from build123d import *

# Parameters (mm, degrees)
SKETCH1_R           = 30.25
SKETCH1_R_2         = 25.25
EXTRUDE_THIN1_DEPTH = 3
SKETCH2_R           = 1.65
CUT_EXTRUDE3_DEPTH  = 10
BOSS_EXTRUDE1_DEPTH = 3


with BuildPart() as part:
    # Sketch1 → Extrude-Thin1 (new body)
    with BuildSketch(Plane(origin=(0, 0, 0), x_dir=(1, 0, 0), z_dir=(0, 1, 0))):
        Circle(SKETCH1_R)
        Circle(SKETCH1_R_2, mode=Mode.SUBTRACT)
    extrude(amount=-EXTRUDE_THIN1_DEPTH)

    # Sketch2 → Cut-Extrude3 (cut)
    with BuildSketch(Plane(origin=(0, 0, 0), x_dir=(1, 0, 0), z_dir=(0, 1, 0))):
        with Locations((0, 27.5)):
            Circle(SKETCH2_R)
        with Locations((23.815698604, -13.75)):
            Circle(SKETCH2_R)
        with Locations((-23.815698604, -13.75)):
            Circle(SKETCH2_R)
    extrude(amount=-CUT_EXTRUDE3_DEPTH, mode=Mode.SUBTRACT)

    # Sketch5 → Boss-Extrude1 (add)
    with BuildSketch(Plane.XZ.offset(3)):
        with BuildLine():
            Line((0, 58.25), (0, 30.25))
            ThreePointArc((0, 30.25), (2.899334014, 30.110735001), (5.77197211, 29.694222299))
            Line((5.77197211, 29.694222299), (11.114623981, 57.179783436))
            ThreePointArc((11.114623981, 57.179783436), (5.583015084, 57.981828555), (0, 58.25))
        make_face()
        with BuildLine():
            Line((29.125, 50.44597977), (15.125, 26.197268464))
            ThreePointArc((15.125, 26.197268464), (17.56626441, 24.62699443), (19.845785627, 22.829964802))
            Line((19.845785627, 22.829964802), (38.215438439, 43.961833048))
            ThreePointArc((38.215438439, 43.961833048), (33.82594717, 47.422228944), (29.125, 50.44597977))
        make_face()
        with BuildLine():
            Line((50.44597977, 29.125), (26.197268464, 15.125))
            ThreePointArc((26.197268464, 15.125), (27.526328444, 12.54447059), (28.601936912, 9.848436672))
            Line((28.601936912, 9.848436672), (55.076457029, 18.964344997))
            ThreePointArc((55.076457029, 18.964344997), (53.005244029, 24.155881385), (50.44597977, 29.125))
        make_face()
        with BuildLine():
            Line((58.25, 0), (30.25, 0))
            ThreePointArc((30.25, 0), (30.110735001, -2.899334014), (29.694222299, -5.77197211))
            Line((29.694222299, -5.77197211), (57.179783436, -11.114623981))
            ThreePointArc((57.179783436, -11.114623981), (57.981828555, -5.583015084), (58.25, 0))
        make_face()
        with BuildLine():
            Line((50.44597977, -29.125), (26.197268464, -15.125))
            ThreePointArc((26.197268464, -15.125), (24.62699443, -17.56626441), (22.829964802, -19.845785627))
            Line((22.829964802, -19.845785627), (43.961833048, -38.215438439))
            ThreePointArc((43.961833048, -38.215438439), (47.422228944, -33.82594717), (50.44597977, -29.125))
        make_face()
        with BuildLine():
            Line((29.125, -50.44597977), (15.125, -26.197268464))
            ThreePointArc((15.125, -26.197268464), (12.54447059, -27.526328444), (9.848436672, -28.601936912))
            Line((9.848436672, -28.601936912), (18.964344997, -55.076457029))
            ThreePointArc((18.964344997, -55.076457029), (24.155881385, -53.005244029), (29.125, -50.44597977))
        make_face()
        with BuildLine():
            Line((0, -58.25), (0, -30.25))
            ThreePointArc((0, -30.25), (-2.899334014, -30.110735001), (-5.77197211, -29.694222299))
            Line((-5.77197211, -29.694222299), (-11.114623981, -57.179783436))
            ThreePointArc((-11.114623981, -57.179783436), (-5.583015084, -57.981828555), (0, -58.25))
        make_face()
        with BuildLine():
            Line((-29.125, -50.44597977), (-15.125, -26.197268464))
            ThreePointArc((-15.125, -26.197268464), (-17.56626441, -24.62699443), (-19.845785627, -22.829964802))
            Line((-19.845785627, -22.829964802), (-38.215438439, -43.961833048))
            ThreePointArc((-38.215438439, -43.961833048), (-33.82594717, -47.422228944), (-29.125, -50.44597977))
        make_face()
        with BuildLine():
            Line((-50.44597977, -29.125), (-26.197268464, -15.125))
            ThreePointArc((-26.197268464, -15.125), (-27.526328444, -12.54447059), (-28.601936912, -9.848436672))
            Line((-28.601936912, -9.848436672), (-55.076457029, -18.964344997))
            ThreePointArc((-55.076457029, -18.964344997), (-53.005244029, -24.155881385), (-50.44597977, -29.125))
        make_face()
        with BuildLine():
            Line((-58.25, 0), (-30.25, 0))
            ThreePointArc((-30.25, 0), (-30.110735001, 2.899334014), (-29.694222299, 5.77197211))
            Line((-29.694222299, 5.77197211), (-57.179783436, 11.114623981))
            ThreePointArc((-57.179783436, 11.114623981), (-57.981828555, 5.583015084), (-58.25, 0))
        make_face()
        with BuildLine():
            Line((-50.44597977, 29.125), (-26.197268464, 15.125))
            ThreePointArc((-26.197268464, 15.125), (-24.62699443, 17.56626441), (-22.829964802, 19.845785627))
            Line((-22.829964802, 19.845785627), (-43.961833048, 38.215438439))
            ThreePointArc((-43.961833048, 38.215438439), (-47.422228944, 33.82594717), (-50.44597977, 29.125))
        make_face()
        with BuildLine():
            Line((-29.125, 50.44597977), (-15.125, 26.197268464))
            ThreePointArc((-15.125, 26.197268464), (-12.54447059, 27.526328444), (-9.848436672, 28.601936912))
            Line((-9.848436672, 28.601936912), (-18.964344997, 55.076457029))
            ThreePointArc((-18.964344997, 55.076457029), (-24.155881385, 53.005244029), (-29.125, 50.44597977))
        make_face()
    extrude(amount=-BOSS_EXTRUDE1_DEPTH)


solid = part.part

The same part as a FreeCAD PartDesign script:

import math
import FreeCAD as App
import Part
import Sketcher
from FreeCAD import Vector
Q = App.Units.Quantity

doc = App.newDocument("Part")
body = doc.addObject("PartDesign::Body", "Body")

# Sketch on XZ plane
sketch1 = body.newObject("Sketcher::SketchObject", "Sketch")
sketch1.AttachmentSupport = (doc.getObject("XZ_Plane"), [""])
sketch1.MapMode = "FlatFace"
sketch1.addGeometry(Part.Circle(Vector(0, 0, 0), Vector(0, 0, 1), 30.25), False)
sketch1.addGeometry(Part.Circle(Vector(0, 0, 0), Vector(0, 0, 1), 25.25), False)
sketch1.addConstraint(Sketcher.Constraint("Coincident", 0, 3, -1, 1))
sketch1.addConstraint(Sketcher.Constraint("Coincident", 1, 3, -1, 1))
sketch1.addConstraint(Sketcher.Constraint("Diameter", 0, 60.5))
sketch1.addConstraint(Sketcher.Constraint("Diameter", 1, 50.5))
pad1 = body.newObject("PartDesign::Pad", "Pad")
pad1.Profile = sketch1
pad1.Length = 3

# Sketch on XZ plane
sketch2 = body.newObject("Sketcher::SketchObject", "Sketch001")
sketch2.AttachmentSupport = (doc.getObject("XZ_Plane"), [""])
sketch2.MapMode = "FlatFace"
sketch2.addGeometry(Part.Circle(Vector(0, -27.5, 0), Vector(0, 0, 1), 1.65), False)
sketch2.addGeometry(Part.Circle(Vector(23.815699, 13.75, 0), Vector(0, 0, 1), 1.65), False)
sketch2.addGeometry(Part.Circle(Vector(-23.815699, 13.75, 0), Vector(0, 0, 1), 1.65), False)
sketch2.addConstraint(Sketcher.Constraint("Equal", 0, 1))
sketch2.addConstraint(Sketcher.Constraint("Equal", 1, 2))
sketch2.addConstraint(Sketcher.Constraint("Symmetric", 1, 3, 2, 3, -2))
sketch2.addConstraint(Sketcher.Constraint("PointOnObject", 0, 3, -2))
sketch2.addConstraint(Sketcher.Constraint("Diameter", 0, 3.3))
sketch2.addConstraint(Sketcher.Constraint("DistanceY", 0, 3, -1, 1, 27.5))
sketch2.addConstraint(Sketcher.Constraint("DistanceY", -1, 1, 1, 3, 13.75))
sketch2.addConstraint(Sketcher.Constraint("DistanceX", -1, 1, 1, 3, 23.815699))
pocket1 = body.newObject("PartDesign::Pocket", "Pocket")
pocket1.Profile = sketch2
pocket1.Length = 10
pocket1.Reversed = True

# Sketch on XZ plane
sketch3 = body.newObject("Sketcher::SketchObject", "Sketch002")
sketch3.AttachmentSupport = (doc.getObject("XZ_Plane"), [""])
sketch3.MapMode = "FlatFace"
sketch3.AttachmentOffset = App.Placement(Vector(0, 0, 3), App.Rotation())
sketch3.addGeometry(Part.LineSegment(Vector(0, 58.25, 0), Vector(0, 30.25, 0)), False)
sketch3.addGeometry(Part.ArcOfCircle(Part.Circle(Vector(0, 0, 0), Vector(0, 0, 1), 30.25), math.radians(79), math.radians(90)), False)
sketch3.addGeometry(Part.LineSegment(Vector(5.771972, 29.694222, 0), Vector(11.114624, 57.179783, 0)), False)
sketch3.addGeometry(Part.ArcOfCircle(Part.Circle(Vector(0, 0, 0), Vector(0, 0, 1), 58.25), math.radians(79), math.radians(90)), False)
sketch3.addGeometry(Part.LineSegment(Vector(29.125, 50.44598, 0), Vector(15.125, 26.197268, 0)), False)
sketch3.addGeometry(Part.ArcOfCircle(Part.Circle(Vector(0, 0, 0), Vector(0, 0, 1), 30.25), math.radians(49), math.radians(60)), False)
sketch3.addGeometry(Part.LineSegment(Vector(19.845786, 22.829965, 0), Vector(38.215438, 43.961833, 0)), False)
sketch3.addGeometry(Part.ArcOfCircle(Part.Circle(Vector(0, 0, 0), Vector(0, 0, 1), 58.25), math.radians(49), math.radians(60)), False)
sketch3.addGeometry(Part.LineSegment(Vector(50.44598, 29.125, 0), Vector(26.197268, 15.125, 0)), False)
sketch3.addGeometry(Part.ArcOfCircle(Part.Circle(Vector(0, 0, 0), Vector(0, 0, 1), 30.25), math.radians(19), math.radians(30)), False)
sketch3.addGeometry(Part.LineSegment(Vector(28.601937, 9.848437, 0), Vector(55.076457, 18.964345, 0)), False)
sketch3.addGeometry(Part.ArcOfCircle(Part.Circle(Vector(0, 0, 0), Vector(0, 0, 1), 58.25), math.radians(19), math.radians(30)), False)
sketch3.addGeometry(Part.LineSegment(Vector(58.25, 0, 0), Vector(30.25, 0, 0)), False)
sketch3.addGeometry(Part.ArcOfCircle(Part.Circle(Vector(0, 0, 0), Vector(0, 0, 1), 30.25), math.radians(-11), math.radians(0)), False)
sketch3.addGeometry(Part.LineSegment(Vector(29.694222, -5.771972, 0), Vector(57.179783, -11.114624, 0)), False)
sketch3.addGeometry(Part.ArcOfCircle(Part.Circle(Vector(0, 0, 0), Vector(0, 0, 1), 58.25), math.radians(-11), math.radians(0)), False)
sketch3.addGeometry(Part.LineSegment(Vector(50.44598, -29.125, 0), Vector(26.197268, -15.125, 0)), False)
sketch3.addGeometry(Part.ArcOfCircle(Part.Circle(Vector(0, 0, 0), Vector(0, 0, 1), 30.25), math.radians(-41), math.radians(-30)), False)
sketch3.addGeometry(Part.LineSegment(Vector(22.829965, -19.845786, 0), Vector(43.961833, -38.215438, 0)), False)
sketch3.addGeometry(Part.ArcOfCircle(Part.Circle(Vector(0, 0, 0), Vector(0, 0, 1), 58.25), math.radians(-41), math.radians(-30)), False)
sketch3.addGeometry(Part.LineSegment(Vector(29.125, -50.44598, 0), Vector(15.125, -26.197268, 0)), False)
sketch3.addGeometry(Part.ArcOfCircle(Part.Circle(Vector(0, 0, 0), Vector(0, 0, 1), 30.25), math.radians(-71), math.radians(-60)), False)
sketch3.addGeometry(Part.LineSegment(Vector(9.848437, -28.601937, 0), Vector(18.964345, -55.076457, 0)), False)
sketch3.addGeometry(Part.ArcOfCircle(Part.Circle(Vector(0, 0, 0), Vector(0, 0, 1), 58.25), math.radians(-71), math.radians(-60)), False)
sketch3.addGeometry(Part.LineSegment(Vector(0, -58.25, 0), Vector(0, -30.25, 0)), False)
sketch3.addGeometry(Part.ArcOfCircle(Part.Circle(Vector(0, 0, 0), Vector(0, 0, 1), 30.25), math.radians(-101), math.radians(-90)), False)
sketch3.addGeometry(Part.LineSegment(Vector(-5.771972, -29.694222, 0), Vector(-11.114624, -57.179783, 0)), False)
sketch3.addGeometry(Part.ArcOfCircle(Part.Circle(Vector(0, 0, 0), Vector(0, 0, 1), 58.25), math.radians(-101), math.radians(-90)), False)
sketch3.addGeometry(Part.LineSegment(Vector(-29.125, -50.44598, 0), Vector(-15.125, -26.197268, 0)), False)
sketch3.addGeometry(Part.ArcOfCircle(Part.Circle(Vector(0, 0, 0), Vector(0, 0, 1), 30.25), math.radians(-131), math.radians(-120)), False)
sketch3.addGeometry(Part.LineSegment(Vector(-19.845786, -22.829965, 0), Vector(-38.215438, -43.961833, 0)), False)
sketch3.addGeometry(Part.ArcOfCircle(Part.Circle(Vector(0, 0, 0), Vector(0, 0, 1), 58.25), math.radians(-131), math.radians(-120)), False)
sketch3.addGeometry(Part.LineSegment(Vector(-50.44598, -29.125, 0), Vector(-26.197268, -15.125, 0)), False)
sketch3.addGeometry(Part.ArcOfCircle(Part.Circle(Vector(0, 0, 0), Vector(0, 0, 1), 30.25), math.radians(-161), math.radians(-150)), False)
sketch3.addGeometry(Part.LineSegment(Vector(-28.601937, -9.848437, 0), Vector(-55.076457, -18.964345, 0)), False)
sketch3.addGeometry(Part.ArcOfCircle(Part.Circle(Vector(0, 0, 0), Vector(0, 0, 1), 58.25), math.radians(-161), math.radians(-150)), False)
sketch3.addGeometry(Part.LineSegment(Vector(-58.25, 0, 0), Vector(-30.25, 0, 0)), False)
sketch3.addGeometry(Part.ArcOfCircle(Part.Circle(Vector(0, 0, 0), Vector(0, 0, 1), 30.25), math.radians(169), math.radians(180)), False)
sketch3.addGeometry(Part.LineSegment(Vector(-29.694222, 5.771972, 0), Vector(-57.179783, 11.114624, 0)), False)
sketch3.addGeometry(Part.ArcOfCircle(Part.Circle(Vector(0, 0, 0), Vector(0, 0, 1), 58.25), math.radians(169), math.radians(180)), False)
sketch3.addGeometry(Part.LineSegment(Vector(-50.44598, 29.125, 0), Vector(-26.197268, 15.125, 0)), False)
sketch3.addGeometry(Part.ArcOfCircle(Part.Circle(Vector(0, 0, 0), Vector(0, 0, 1), 30.25), math.radians(139), math.radians(150)), False)
sketch3.addGeometry(Part.LineSegment(Vector(-22.829965, 19.845786, 0), Vector(-43.961833, 38.215438, 0)), False)
sketch3.addGeometry(Part.ArcOfCircle(Part.Circle(Vector(0, 0, 0), Vector(0, 0, 1), 58.25), math.radians(139), math.radians(150)), False)
sketch3.addGeometry(Part.LineSegment(Vector(-29.125, 50.44598, 0), Vector(-15.125, 26.197268, 0)), False)
sketch3.addGeometry(Part.ArcOfCircle(Part.Circle(Vector(0, 0, 0), Vector(0, 0, 1), 30.25), math.radians(109), math.radians(120)), False)
sketch3.addGeometry(Part.LineSegment(Vector(-9.848437, 28.601937, 0), Vector(-18.964345, 55.076457, 0)), False)
sketch3.addGeometry(Part.ArcOfCircle(Part.Circle(Vector(0, 0, 0), Vector(0, 0, 1), 58.25), math.radians(109), math.radians(120)), False)
sketch3.addConstraint(Sketcher.Constraint("Coincident", 0, 2, 1, 2))
sketch3.addConstraint(Sketcher.Constraint("Coincident", 1, 1, 2, 1))
sketch3.addConstraint(Sketcher.Constraint("Coincident", 2, 2, 3, 1))
sketch3.addConstraint(Sketcher.Constraint("Coincident", 3, 2, 0, 1))
sketch3.addConstraint(Sketcher.Constraint("Coincident", 4, 2, 5, 2))
sketch3.addConstraint(Sketcher.Constraint("Coincident", 5, 1, 6, 1))
sketch3.addConstraint(Sketcher.Constraint("Coincident", 6, 2, 7, 1))
sketch3.addConstraint(Sketcher.Constraint("Coincident", 7, 2, 4, 1))
sketch3.addConstraint(Sketcher.Constraint("Coincident", 8, 2, 9, 2))
sketch3.addConstraint(Sketcher.Constraint("Coincident", 9, 1, 10, 1))
sketch3.addConstraint(Sketcher.Constraint("Coincident", 10, 2, 11, 1))
sketch3.addConstraint(Sketcher.Constraint("Coincident", 11, 2, 8, 1))
sketch3.addConstraint(Sketcher.Constraint("Coincident", 12, 2, 13, 2))
sketch3.addConstraint(Sketcher.Constraint("Coincident", 13, 1, 14, 1))
sketch3.addConstraint(Sketcher.Constraint("Coincident", 14, 2, 15, 1))
sketch3.addConstraint(Sketcher.Constraint("Coincident", 15, 2, 12, 1))
sketch3.addConstraint(Sketcher.Constraint("Coincident", 16, 2, 17, 2))
sketch3.addConstraint(Sketcher.Constraint("Coincident", 17, 1, 18, 1))
sketch3.addConstraint(Sketcher.Constraint("Coincident", 18, 2, 19, 1))
sketch3.addConstraint(Sketcher.Constraint("Coincident", 19, 2, 16, 1))
sketch3.addConstraint(Sketcher.Constraint("Coincident", 20, 2, 21, 2))
sketch3.addConstraint(Sketcher.Constraint("Coincident", 21, 1, 22, 1))
sketch3.addConstraint(Sketcher.Constraint("Coincident", 22, 2, 23, 1))
sketch3.addConstraint(Sketcher.Constraint("Coincident", 23, 2, 20, 1))
sketch3.addConstraint(Sketcher.Constraint("Coincident", 24, 2, 25, 2))
sketch3.addConstraint(Sketcher.Constraint("Coincident", 25, 1, 26, 1))
sketch3.addConstraint(Sketcher.Constraint("Coincident", 26, 2, 27, 1))
sketch3.addConstraint(Sketcher.Constraint("Coincident", 27, 2, 24, 1))
sketch3.addConstraint(Sketcher.Constraint("Coincident", 28, 2, 29, 2))
sketch3.addConstraint(Sketcher.Constraint("Coincident", 29, 1, 30, 1))
sketch3.addConstraint(Sketcher.Constraint("Coincident", 30, 2, 31, 1))
sketch3.addConstraint(Sketcher.Constraint("Coincident", 31, 2, 28, 1))
sketch3.addConstraint(Sketcher.Constraint("Coincident", 32, 2, 33, 2))
sketch3.addConstraint(Sketcher.Constraint("Coincident", 33, 1, 34, 1))
sketch3.addConstraint(Sketcher.Constraint("Coincident", 34, 2, 35, 1))
sketch3.addConstraint(Sketcher.Constraint("Coincident", 35, 2, 32, 1))
sketch3.addConstraint(Sketcher.Constraint("Coincident", 36, 2, 37, 2))
sketch3.addConstraint(Sketcher.Constraint("Coincident", 37, 1, 38, 1))
sketch3.addConstraint(Sketcher.Constraint("Coincident", 38, 2, 39, 1))
sketch3.addConstraint(Sketcher.Constraint("Coincident", 39, 2, 36, 1))
sketch3.addConstraint(Sketcher.Constraint("Coincident", 40, 2, 41, 2))
sketch3.addConstraint(Sketcher.Constraint("Coincident", 41, 1, 42, 1))
sketch3.addConstraint(Sketcher.Constraint("Coincident", 42, 2, 43, 1))
sketch3.addConstraint(Sketcher.Constraint("Coincident", 43, 2, 40, 1))
sketch3.addConstraint(Sketcher.Constraint("Coincident", 44, 2, 45, 2))
sketch3.addConstraint(Sketcher.Constraint("Coincident", 45, 1, 46, 1))
sketch3.addConstraint(Sketcher.Constraint("Coincident", 46, 2, 47, 1))
sketch3.addConstraint(Sketcher.Constraint("Coincident", 47, 2, 44, 1))
sketch3.addConstraint(Sketcher.Constraint("Vertical", 0))
sketch3.addConstraint(Sketcher.Constraint("Horizontal", 12))
sketch3.addConstraint(Sketcher.Constraint("Vertical", 24))
sketch3.addConstraint(Sketcher.Constraint("Horizontal", 36))
sketch3.addConstraint(Sketcher.Constraint("Coincident", 1, 3, -1, 1))
sketch3.addConstraint(Sketcher.Constraint("Coincident", 3, 3, -1, 1))
sketch3.addConstraint(Sketcher.Constraint("Coincident", 5, 3, -1, 1))
sketch3.addConstraint(Sketcher.Constraint("Coincident", 7, 3, -1, 1))
sketch3.addConstraint(Sketcher.Constraint("Coincident", 9, 3, -1, 1))
sketch3.addConstraint(Sketcher.Constraint("Coincident", 11, 3, -1, 1))
sketch3.addConstraint(Sketcher.Constraint("Coincident", 13, 3, -1, 1))
sketch3.addConstraint(Sketcher.Constraint("Coincident", 15, 3, -1, 1))
sketch3.addConstraint(Sketcher.Constraint("Coincident", 17, 3, -1, 1))
sketch3.addConstraint(Sketcher.Constraint("Coincident", 19, 3, -1, 1))
sketch3.addConstraint(Sketcher.Constraint("Coincident", 21, 3, -1, 1))
sketch3.addConstraint(Sketcher.Constraint("Coincident", 23, 3, -1, 1))
sketch3.addConstraint(Sketcher.Constraint("Coincident", 25, 3, -1, 1))
sketch3.addConstraint(Sketcher.Constraint("Coincident", 27, 3, -1, 1))
sketch3.addConstraint(Sketcher.Constraint("Coincident", 29, 3, -1, 1))
sketch3.addConstraint(Sketcher.Constraint("Coincident", 31, 3, -1, 1))
sketch3.addConstraint(Sketcher.Constraint("Coincident", 33, 3, -1, 1))
sketch3.addConstraint(Sketcher.Constraint("Coincident", 35, 3, -1, 1))
sketch3.addConstraint(Sketcher.Constraint("Coincident", 37, 3, -1, 1))
sketch3.addConstraint(Sketcher.Constraint("Coincident", 39, 3, -1, 1))
sketch3.addConstraint(Sketcher.Constraint("Coincident", 41, 3, -1, 1))
sketch3.addConstraint(Sketcher.Constraint("Coincident", 43, 3, -1, 1))
sketch3.addConstraint(Sketcher.Constraint("Coincident", 45, 3, -1, 1))
sketch3.addConstraint(Sketcher.Constraint("Coincident", 47, 3, -1, 1))
sketch3.addConstraint(Sketcher.Constraint("Equal", 1, 5))
sketch3.addConstraint(Sketcher.Constraint("Equal", 3, 7))
sketch3.addConstraint(Sketcher.Constraint("Equal", 5, 9))
sketch3.addConstraint(Sketcher.Constraint("Equal", 7, 11))
sketch3.addConstraint(Sketcher.Constraint("Equal", 9, 13))
sketch3.addConstraint(Sketcher.Constraint("Equal", 11, 15))
sketch3.addConstraint(Sketcher.Constraint("Equal", 13, 17))
sketch3.addConstraint(Sketcher.Constraint("Equal", 15, 19))
sketch3.addConstraint(Sketcher.Constraint("Equal", 17, 21))
sketch3.addConstraint(Sketcher.Constraint("Equal", 19, 23))
sketch3.addConstraint(Sketcher.Constraint("Equal", 21, 25))
sketch3.addConstraint(Sketcher.Constraint("Equal", 23, 27))
sketch3.addConstraint(Sketcher.Constraint("Equal", 25, 29))
sketch3.addConstraint(Sketcher.Constraint("Equal", 27, 31))
sketch3.addConstraint(Sketcher.Constraint("Equal", 29, 33))
sketch3.addConstraint(Sketcher.Constraint("Equal", 31, 35))
sketch3.addConstraint(Sketcher.Constraint("Equal", 33, 37))
sketch3.addConstraint(Sketcher.Constraint("Equal", 35, 39))
sketch3.addConstraint(Sketcher.Constraint("Equal", 37, 41))
sketch3.addConstraint(Sketcher.Constraint("Equal", 39, 43))
sketch3.addConstraint(Sketcher.Constraint("Equal", 41, 45))
sketch3.addConstraint(Sketcher.Constraint("Equal", 43, 47))
sketch3.addConstraint(Sketcher.Constraint("PointOnObject", 0, 2, -2))
sketch3.addConstraint(Sketcher.Constraint("PointOnObject", 12, 2, -1))
sketch3.addConstraint(Sketcher.Constraint("PointOnObject", 24, 2, -2))
sketch3.addConstraint(Sketcher.Constraint("PointOnObject", 36, 2, -1))
sketch3.addConstraint(Sketcher.Constraint("Perpendicular", 2, 14))
sketch3.addConstraint(Sketcher.Constraint("Perpendicular", 4, 16))
sketch3.addConstraint(Sketcher.Constraint("Perpendicular", 6, 18))
sketch3.addConstraint(Sketcher.Constraint("Perpendicular", 8, 20))
sketch3.addConstraint(Sketcher.Constraint("Perpendicular", 10, 22))
sketch3.addConstraint(Sketcher.Constraint("Perpendicular", 14, 26))
sketch3.addConstraint(Sketcher.Constraint("Perpendicular", 16, 28))
sketch3.addConstraint(Sketcher.Constraint("Perpendicular", 18, 30))
sketch3.addConstraint(Sketcher.Constraint("Perpendicular", 20, 32))
sketch3.addConstraint(Sketcher.Constraint("Perpendicular", 22, 34))
sketch3.addConstraint(Sketcher.Constraint("Perpendicular", 26, 38))
sketch3.addConstraint(Sketcher.Constraint("Perpendicular", 28, 40))
sketch3.addConstraint(Sketcher.Constraint("Perpendicular", 30, 42))
sketch3.addConstraint(Sketcher.Constraint("Perpendicular", 32, 44))
sketch3.addConstraint(Sketcher.Constraint("Perpendicular", 34, 46))
sketch3.addConstraint(Sketcher.Constraint("Horizontal", 20, 2, 28, 2))
sketch3.addConstraint(Sketcher.Constraint("Horizontal", 23, 2, 31, 2))
sketch3.addConstraint(Sketcher.Constraint("Horizontal", 16, 2, 32, 2))
sketch3.addConstraint(Sketcher.Constraint("Horizontal", 8, 2, 40, 2))
sketch3.addConstraint(Sketcher.Constraint("Horizontal", 4, 2, 44, 2))
sketch3.addConstraint(Sketcher.Constraint("Vertical", 8, 2, 16, 2))
sketch3.addConstraint(Sketcher.Constraint("Vertical", 4, 2, 20, 2))
sketch3.addConstraint(Sketcher.Constraint("DistanceX", 12, 2, 12, 1, 28.0))
sketch3.addConstraint(Sketcher.Constraint("Angle", 2, Q("79 deg")))
sketch3.addConstraint(Sketcher.Constraint("Angle", 4, Q("-120 deg")))
sketch3.addConstraint(Sketcher.Constraint("Angle", 6, Q("49 deg")))
sketch3.addConstraint(Sketcher.Constraint("Angle", 10, Q("19 deg")))
sketch3.addConstraint(Sketcher.Constraint("Radius", 1, 30.25))
sketch3.addConstraint(Sketcher.Constraint("DistanceX", -1, 1, 4, 2, 15.125))
sketch3.addConstraint(Sketcher.Constraint("DistanceY", -1, 1, 8, 2, 15.125))
sketch3.addConstraint(Sketcher.Constraint("DistanceX", -1, 1, 6, 2, 38.215438))
sketch3.addConstraint(Sketcher.Constraint("DistanceY", 18, 2, -1, 1, 38.215438))
sketch3.addConstraint(Sketcher.Constraint("DistanceX", 30, 2, -1, 1, 38.215438))
sketch3.addConstraint(Sketcher.Constraint("DistanceY", -1, 1, 42, 2, 38.215438))
sketch3.addConstraint(Sketcher.Constraint("DistanceX", -1, 1, 1, 1, 5.771972))
sketch3.addConstraint(Sketcher.Constraint("DistanceX", -1, 1, 9, 1, 28.601937))
sketch3.addConstraint(Sketcher.Constraint("DistanceX", -1, 1, 13, 1, 29.694222))
sketch3.addConstraint(Sketcher.Constraint("DistanceX", -1, 1, 21, 1, 9.848437))
sketch3.addConstraint(Sketcher.Constraint("DistanceX", 25, 1, -1, 1, 5.771972))
sketch3.addConstraint(Sketcher.Constraint("DistanceX", 33, 1, -1, 1, 28.601937))
sketch3.addConstraint(Sketcher.Constraint("DistanceX", 37, 1, -1, 1, 29.694222))
sketch3.addConstraint(Sketcher.Constraint("DistanceX", 45, 1, -1, 1, 9.848437))
pad2 = body.newObject("PartDesign::Pad", "Pad001")
pad2.Profile = sketch3
pad2.Length = 3
pad2.Reversed = True

doc.recompute()
